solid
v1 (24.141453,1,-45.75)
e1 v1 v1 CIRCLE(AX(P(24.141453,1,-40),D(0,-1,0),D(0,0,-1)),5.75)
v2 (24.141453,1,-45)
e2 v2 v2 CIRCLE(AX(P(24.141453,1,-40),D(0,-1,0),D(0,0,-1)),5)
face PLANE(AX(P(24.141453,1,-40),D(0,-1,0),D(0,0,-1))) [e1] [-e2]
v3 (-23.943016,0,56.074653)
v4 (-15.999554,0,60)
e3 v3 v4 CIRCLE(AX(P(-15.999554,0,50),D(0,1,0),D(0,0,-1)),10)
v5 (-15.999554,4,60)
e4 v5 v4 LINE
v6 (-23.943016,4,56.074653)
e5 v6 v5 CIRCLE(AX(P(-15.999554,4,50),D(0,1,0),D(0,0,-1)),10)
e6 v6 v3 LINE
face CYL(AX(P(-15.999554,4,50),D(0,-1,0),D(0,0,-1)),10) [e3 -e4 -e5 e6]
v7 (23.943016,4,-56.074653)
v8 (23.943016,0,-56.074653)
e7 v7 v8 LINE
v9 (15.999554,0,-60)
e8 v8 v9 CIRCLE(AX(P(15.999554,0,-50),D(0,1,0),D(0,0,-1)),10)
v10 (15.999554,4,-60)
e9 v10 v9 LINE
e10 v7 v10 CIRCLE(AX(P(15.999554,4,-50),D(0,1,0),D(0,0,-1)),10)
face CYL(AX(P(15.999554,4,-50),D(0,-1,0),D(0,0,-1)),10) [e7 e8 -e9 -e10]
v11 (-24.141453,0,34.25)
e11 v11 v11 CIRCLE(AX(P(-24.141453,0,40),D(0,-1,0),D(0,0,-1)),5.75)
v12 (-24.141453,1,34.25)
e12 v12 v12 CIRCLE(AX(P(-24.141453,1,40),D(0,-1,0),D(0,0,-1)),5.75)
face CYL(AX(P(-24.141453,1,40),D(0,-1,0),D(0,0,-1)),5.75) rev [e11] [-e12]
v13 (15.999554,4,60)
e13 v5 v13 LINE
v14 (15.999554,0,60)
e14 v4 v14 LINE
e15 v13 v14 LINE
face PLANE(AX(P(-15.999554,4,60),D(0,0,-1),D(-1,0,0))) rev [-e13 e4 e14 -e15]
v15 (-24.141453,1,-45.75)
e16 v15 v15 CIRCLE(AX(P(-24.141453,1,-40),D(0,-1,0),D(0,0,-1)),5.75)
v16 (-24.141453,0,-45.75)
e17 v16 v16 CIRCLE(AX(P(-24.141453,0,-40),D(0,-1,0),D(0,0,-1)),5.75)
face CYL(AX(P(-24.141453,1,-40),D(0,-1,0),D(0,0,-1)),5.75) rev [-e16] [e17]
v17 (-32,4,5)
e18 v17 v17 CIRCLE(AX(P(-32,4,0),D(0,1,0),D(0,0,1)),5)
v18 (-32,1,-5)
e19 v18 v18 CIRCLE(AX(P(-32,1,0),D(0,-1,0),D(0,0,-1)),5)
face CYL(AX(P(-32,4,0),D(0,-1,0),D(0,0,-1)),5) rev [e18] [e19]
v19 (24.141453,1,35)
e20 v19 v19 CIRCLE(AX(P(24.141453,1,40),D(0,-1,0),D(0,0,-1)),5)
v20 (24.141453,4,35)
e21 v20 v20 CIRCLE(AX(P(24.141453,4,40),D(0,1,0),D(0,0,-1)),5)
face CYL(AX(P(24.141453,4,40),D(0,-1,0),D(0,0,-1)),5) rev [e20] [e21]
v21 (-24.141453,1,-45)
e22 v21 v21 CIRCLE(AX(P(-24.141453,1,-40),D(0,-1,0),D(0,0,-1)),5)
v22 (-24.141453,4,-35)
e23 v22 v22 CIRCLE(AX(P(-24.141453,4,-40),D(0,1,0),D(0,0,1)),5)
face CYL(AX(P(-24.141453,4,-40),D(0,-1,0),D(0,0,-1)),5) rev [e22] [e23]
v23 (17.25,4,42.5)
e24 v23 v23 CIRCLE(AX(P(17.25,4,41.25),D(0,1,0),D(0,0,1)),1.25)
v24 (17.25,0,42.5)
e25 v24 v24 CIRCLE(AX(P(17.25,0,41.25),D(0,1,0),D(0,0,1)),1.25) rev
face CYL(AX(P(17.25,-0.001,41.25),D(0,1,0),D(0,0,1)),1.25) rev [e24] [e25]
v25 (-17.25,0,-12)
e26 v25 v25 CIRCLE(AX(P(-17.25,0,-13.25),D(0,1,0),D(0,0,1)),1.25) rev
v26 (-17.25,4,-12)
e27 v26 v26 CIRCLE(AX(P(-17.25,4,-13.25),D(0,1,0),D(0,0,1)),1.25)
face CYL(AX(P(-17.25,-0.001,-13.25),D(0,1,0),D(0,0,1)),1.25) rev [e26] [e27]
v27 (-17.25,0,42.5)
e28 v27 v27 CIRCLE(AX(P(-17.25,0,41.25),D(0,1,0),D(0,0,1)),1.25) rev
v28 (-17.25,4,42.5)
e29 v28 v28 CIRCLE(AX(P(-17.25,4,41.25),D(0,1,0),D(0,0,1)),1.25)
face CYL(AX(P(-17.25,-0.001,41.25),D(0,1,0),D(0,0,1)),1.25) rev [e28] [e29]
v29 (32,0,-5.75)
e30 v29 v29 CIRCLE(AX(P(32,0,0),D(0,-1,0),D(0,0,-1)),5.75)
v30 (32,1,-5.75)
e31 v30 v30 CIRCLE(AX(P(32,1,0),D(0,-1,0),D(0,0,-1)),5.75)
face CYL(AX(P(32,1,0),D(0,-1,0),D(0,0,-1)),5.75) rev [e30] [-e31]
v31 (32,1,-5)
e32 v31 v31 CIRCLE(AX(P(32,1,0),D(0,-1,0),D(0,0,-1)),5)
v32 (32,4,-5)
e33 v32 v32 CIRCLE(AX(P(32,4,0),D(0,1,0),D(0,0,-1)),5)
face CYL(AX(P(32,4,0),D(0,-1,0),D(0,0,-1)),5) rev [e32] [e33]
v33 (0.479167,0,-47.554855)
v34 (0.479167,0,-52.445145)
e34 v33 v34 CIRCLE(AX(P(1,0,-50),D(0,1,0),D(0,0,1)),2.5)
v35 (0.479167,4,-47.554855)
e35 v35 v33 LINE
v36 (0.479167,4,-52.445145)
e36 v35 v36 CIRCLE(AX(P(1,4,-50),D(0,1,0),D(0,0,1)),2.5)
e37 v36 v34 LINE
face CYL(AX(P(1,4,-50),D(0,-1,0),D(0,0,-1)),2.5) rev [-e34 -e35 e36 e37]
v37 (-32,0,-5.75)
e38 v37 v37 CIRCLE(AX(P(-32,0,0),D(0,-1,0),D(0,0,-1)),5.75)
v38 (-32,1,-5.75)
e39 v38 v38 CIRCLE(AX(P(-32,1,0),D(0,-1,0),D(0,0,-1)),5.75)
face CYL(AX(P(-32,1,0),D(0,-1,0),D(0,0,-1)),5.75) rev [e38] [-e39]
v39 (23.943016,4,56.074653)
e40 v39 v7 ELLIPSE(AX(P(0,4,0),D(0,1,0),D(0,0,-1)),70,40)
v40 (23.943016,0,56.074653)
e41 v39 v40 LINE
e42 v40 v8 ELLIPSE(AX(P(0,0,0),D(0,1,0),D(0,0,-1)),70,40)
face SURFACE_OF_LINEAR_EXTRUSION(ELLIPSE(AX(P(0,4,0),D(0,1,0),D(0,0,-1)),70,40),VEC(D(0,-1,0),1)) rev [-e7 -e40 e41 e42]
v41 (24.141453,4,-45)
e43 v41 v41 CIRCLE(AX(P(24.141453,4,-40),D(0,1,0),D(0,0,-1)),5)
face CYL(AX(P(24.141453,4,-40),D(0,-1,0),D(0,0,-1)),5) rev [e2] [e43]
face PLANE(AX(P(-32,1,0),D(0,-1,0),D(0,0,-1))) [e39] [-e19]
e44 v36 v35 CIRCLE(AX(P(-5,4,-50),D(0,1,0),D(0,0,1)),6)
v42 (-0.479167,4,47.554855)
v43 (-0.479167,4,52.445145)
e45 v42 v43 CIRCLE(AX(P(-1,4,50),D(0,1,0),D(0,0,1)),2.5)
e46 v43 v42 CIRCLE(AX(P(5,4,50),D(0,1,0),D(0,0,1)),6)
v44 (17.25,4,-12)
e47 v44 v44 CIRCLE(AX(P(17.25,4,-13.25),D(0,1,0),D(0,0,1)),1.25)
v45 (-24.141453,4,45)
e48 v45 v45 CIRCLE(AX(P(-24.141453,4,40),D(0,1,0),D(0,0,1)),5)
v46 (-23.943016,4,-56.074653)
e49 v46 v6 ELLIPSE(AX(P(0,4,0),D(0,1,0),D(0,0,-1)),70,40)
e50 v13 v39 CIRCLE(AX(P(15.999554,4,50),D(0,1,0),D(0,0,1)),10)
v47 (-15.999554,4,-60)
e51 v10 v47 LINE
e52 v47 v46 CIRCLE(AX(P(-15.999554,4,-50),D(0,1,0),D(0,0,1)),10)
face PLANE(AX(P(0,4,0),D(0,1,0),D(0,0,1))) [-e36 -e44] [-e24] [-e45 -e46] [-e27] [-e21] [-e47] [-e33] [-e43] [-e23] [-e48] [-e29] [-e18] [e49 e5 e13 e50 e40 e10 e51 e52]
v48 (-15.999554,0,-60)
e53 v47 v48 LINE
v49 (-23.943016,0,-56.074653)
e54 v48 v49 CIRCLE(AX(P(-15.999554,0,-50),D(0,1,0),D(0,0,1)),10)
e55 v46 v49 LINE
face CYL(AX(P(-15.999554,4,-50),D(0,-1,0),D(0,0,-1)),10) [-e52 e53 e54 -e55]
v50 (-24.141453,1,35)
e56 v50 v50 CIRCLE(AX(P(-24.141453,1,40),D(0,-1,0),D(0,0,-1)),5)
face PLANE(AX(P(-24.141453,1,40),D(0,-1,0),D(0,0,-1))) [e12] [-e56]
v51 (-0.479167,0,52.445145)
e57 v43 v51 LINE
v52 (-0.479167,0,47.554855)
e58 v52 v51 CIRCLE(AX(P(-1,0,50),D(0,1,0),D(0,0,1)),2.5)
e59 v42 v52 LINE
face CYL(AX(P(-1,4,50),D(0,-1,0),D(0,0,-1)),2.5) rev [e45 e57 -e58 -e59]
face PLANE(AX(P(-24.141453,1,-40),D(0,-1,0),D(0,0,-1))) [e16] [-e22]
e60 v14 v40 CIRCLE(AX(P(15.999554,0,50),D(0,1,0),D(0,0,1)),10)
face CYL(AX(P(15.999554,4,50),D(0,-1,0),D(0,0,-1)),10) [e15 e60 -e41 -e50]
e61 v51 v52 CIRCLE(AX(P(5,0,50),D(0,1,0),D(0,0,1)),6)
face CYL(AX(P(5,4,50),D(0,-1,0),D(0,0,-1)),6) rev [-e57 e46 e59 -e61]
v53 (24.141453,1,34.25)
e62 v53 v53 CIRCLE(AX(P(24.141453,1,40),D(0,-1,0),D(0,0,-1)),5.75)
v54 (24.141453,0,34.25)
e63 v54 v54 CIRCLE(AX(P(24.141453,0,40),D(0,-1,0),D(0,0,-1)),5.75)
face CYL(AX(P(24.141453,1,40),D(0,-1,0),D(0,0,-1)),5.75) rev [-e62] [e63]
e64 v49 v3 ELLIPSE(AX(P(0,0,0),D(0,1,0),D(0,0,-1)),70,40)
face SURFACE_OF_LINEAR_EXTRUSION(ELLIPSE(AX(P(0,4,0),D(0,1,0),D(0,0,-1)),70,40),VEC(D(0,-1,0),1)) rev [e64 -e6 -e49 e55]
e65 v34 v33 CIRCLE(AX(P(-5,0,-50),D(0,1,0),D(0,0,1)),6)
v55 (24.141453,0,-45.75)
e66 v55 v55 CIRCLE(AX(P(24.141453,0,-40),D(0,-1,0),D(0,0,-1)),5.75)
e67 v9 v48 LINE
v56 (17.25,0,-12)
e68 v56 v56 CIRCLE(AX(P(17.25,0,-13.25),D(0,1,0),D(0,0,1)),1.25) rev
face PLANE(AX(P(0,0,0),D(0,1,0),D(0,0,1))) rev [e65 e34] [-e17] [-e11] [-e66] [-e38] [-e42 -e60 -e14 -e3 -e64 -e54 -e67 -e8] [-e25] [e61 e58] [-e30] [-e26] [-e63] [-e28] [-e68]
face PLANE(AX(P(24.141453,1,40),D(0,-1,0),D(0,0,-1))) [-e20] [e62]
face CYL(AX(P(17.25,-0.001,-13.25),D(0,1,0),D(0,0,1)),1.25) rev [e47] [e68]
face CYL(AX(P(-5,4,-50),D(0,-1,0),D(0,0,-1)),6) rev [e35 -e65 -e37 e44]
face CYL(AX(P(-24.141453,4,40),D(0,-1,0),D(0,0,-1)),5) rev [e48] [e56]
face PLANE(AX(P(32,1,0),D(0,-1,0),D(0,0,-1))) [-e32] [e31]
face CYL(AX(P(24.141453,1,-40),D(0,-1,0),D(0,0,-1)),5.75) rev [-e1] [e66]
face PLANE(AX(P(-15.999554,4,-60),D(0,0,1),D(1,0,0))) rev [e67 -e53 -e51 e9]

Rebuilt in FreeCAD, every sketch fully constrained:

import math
import FreeCAD as App
import Part
import Sketcher

doc = App.newDocument("Part")
body = doc.addObject("PartDesign::Body", "Body")

sketch1 = doc.addObject("Sketcher::SketchObject", "Sketch")
body.addObject(sketch1)
sketch1.AttachmentSupport = (doc.XZ_Plane, [""])
sketch1.MapMode = "FlatFace"
sketch1.addGeometry([
    Part.LineSegment(App.Vector(15.999554, -60, 0), App.Vector(-15.999554, -60, 0)),
    Part.ArcOfCircle(Part.Circle(App.Vector(-15.999554, -50, 0), App.Vector(0, 0, 1), 10), math.radians(-142.593548), math.radians(-90)),
    Part.BSplineCurve([App.Vector(-23.943016, -56.074653, 0), App.Vector(-66.825332, 0, 0), App.Vector(-23.943016, 56.074653, 0)], [3, 3], [0.641721545, 2.499871109], False, 2, [1, 0.598575399, 1], False),
    Part.ArcOfCircle(Part.Circle(App.Vector(-15.999554, 50, 0), App.Vector(0, 0, 1), 10), math.radians(90), math.radians(142.593548)),
    Part.LineSegment(App.Vector(-15.999554, 60, 0), App.Vector(15.999554, 60, 0)),
    Part.ArcOfCircle(Part.Circle(App.Vector(15.999554, 50, 0), App.Vector(0, 0, 1), 10), math.radians(37.406452), math.radians(90)),
    Part.BSplineCurve([App.Vector(23.943016, 56.074653, 0), App.Vector(66.825332, 0, 0), App.Vector(23.943016, -56.074653, 0)], [3, 3], [3.783314198, 5.641463762], False, 2, [1, 0.598575399, 1], False),
    Part.ArcOfCircle(Part.Circle(App.Vector(15.999554, -50, 0), App.Vector(0, 0, 1), 10), math.radians(-90), math.radians(-37.406452)),
    Part.Circle(App.Vector(24.141453, 40, 0), App.Vector(0, 0, 1), 5),
    Part.ArcOfCircle(Part.Circle(App.Vector(-1, 50, 0), App.Vector(0, 0, 1), 2.5), math.radians(77.975301), math.radians(282.024699)),
    Part.ArcOfCircle(Part.Circle(App.Vector(5, 50, 0), App.Vector(0, 0, 1), 6), math.radians(-155.950602), math.radians(155.950602)),
    Part.Circle(App.Vector(32, 0, 0), App.Vector(0, 0, 1), 5),
    Part.Circle(App.Vector(-24.141453, 40, 0), App.Vector(0, 0, 1), 5),
    Part.Circle(App.Vector(-32, 0, 0), App.Vector(0, 0, 1), 5),
    Part.Circle(App.Vector(24.141453, -40, 0), App.Vector(0, 0, 1), 5),
    Part.ArcOfCircle(Part.Circle(App.Vector(1, -50, 0), App.Vector(0, 0, 1), 2.5), math.radians(-102.024699), math.radians(102.024699)),
    Part.ArcOfCircle(Part.Circle(App.Vector(-5, -50, 0), App.Vector(0, 0, 1), 6), math.radians(24.049398), math.radians(335.950602)),
    Part.Circle(App.Vector(-24.141453, -40, 0), App.Vector(0, 0, 1), 5),
], False)
sketch1.addConstraint([
    Sketcher.Constraint("Block", 2),
    Sketcher.Constraint("Block", 6),
    Sketcher.Constraint("Tangent", 0, 2, 1, 2),
    Sketcher.Constraint("Coincident", 1, 1, 2, 1),
    Sketcher.Constraint("Coincident", 2, 2, 3, 2),
    Sketcher.Constraint("Tangent", 3, 1, 4, 1),
    Sketcher.Constraint("Tangent", 4, 2, 5, 2),
    Sketcher.Constraint("Coincident", 5, 1, 6, 1),
    Sketcher.Constraint("Coincident", 6, 2, 7, 2),
    Sketcher.Constraint("Tangent", 7, 1, 0, 1),
    Sketcher.Constraint("Coincident", 9, 1, 10, 2),
    Sketcher.Constraint("Coincident", 10, 1, 9, 2),
    Sketcher.Constraint("Coincident", 15, 1, 16, 2),
    Sketcher.Constraint("Coincident", 16, 1, 15, 2),
    Sketcher.Constraint("Horizontal", 0),
    Sketcher.Constraint("Horizontal", 4),
    Sketcher.Constraint("Equal", 1, 3),
    Sketcher.Constraint("Equal", 3, 5),
    Sketcher.Constraint("Equal", 5, 7),
    Sketcher.Constraint("Equal", 8, 11),
    Sketcher.Constraint("Equal", 11, 12),
    Sketcher.Constraint("Equal", 12, 13),
    Sketcher.Constraint("Equal", 13, 14),
    Sketcher.Constraint("Equal", 9, 15),
    Sketcher.Constraint("Equal", 10, 16),
    Sketcher.Constraint("Equal", 14, 17),
    Sketcher.Constraint("Symmetric", 11, 3, 13, 3, -1, 1),
    Sketcher.Constraint("Symmetric", 12, 3, 14, 3, -1, 1),
    Sketcher.Constraint("Symmetric", 9, 3, 15, 3, -1, 1),
    Sketcher.Constraint("Symmetric", 10, 3, 16, 3, -1, 1),
    Sketcher.Constraint("Symmetric", 8, 3, 17, 3, -1, 1),
    Sketcher.Constraint("Symmetric", 8, 3, 12, 3, -2),
    Sketcher.Constraint("PointOnObject", 11, 3, -1),
    Sketcher.Constraint("Horizontal", 5, 3, 9, 3),
    Sketcher.Constraint("Horizontal", 9, 3, 10, 3),
    Sketcher.Constraint("Horizontal", 7, 3, 15, 3),
    Sketcher.Constraint("Diameter", 8, 10.0),
    Sketcher.Constraint("Radius", 1, 10.0),
    Sketcher.Constraint("Radius", 10, 6.0),
    Sketcher.Constraint("Radius", 9, 2.5),
    Sketcher.Constraint("DistanceY", 1, 3, -1, 1, 50.0),
    Sketcher.Constraint("DistanceY", -1, 1, 8, 3, 40.0),
    Sketcher.Constraint("DistanceX", 9, 3, -1, 1, 1.0),
    Sketcher.Constraint("DistanceX", -1, 1, 10, 3, 5.0),
    Sketcher.Constraint("DistanceX", -1, 1, 11, 3, 32.0),
    Sketcher.Constraint("DistanceX", 5, 3, 8, 3, 8.141899),
])
pad1 = doc.addObject("PartDesign::Pad", "Pad")
body.addObject(pad1)
pad1.Profile = sketch1
pad1.Length = 4
pad1.Reversed = True

sketch2 = doc.addObject("Sketcher::SketchObject", "Sketch001")
body.addObject(sketch2)
sketch2.AttachmentSupport = (doc.XZ_Plane, [""])
sketch2.MapMode = "FlatFace"
sketch2.addGeometry([
    Part.Circle(App.Vector(-24.141453, -40, 0), App.Vector(0, 0, 1), 5.75),
    Part.Circle(App.Vector(24.141453, -40, 0), App.Vector(0, 0, 1), 5.75),
    Part.Circle(App.Vector(32, 0, 0), App.Vector(0, 0, 1), 5.75),
    Part.Circle(App.Vector(24.141453, 40, 0), App.Vector(0, 0, 1), 5.75),
    Part.Circle(App.Vector(-24.141453, 40, 0), App.Vector(0, 0, 1), 5.75),
    Part.Circle(App.Vector(-32, 0, 0), App.Vector(0, 0, 1), 5.75),
], False)
sketch2.addConstraint([
    Sketcher.Constraint("Equal", 0, 1),
    Sketcher.Constraint("Equal", 1, 2),
    Sketcher.Constraint("Equal", 2, 3),
    Sketcher.Constraint("Equal", 3, 4),
    Sketcher.Constraint("Equal", 4, 5),
    Sketcher.Constraint("Symmetric", 0, 3, 3, 3, -1, 1),
    Sketcher.Constraint("Symmetric", 1, 3, 4, 3, -1, 1),
    Sketcher.Constraint("Symmetric", 2, 3, 5, 3, -1, 1),
    Sketcher.Constraint("Symmetric", 0, 3, 1, 3, -2),
    Sketcher.Constraint("PointOnObject", 2, 3, -1),
    Sketcher.Constraint("Diameter", 0, 11.5),
    Sketcher.Constraint("DistanceY", 0, 3, -1, 1, 40.0),
    Sketcher.Constraint("DistanceX", -1, 1, 2, 3, 32.0),
    Sketcher.Constraint("DistanceX", 0, 3, -1, 1, 24.141453),
])
pocket1 = doc.addObject("PartDesign::Pocket", "Pocket")
body.addObject(pocket1)
pocket1.Profile = sketch2
pocket1.Length = 1

sketch3 = doc.addObject("Sketcher::SketchObject", "Sketch002")
body.addObject(sketch3)
sketch3.AttachmentSupport = (doc.XZ_Plane, [""])
sketch3.MapMode = "FlatFace"
sketch3.AttachmentOffset = App.Placement(App.Vector(0, 0, -4), App.Rotation())
sketch3.addGeometry(Part.Circle(App.Vector(17.25, 41.25, 0), App.Vector(0, 0, 1), 1.25), False)
sketch3.addConstraint([
    Sketcher.Constraint("Diameter", 0, 2.5),
    Sketcher.Constraint("DistanceX", -1, 1, 0, 3, 17.25),
    Sketcher.Constraint("DistanceY", -1, 1, 0, 3, 41.25),
])
pocket2 = doc.addObject("PartDesign::Pocket", "Pocket001")
body.addObject(pocket2)
pocket2.Profile = sketch3
pocket2.Type = "UpToFirst"
pocket2.Reversed = True

sketch4 = doc.addObject("Sketcher::SketchObject", "Sketch003")
body.addObject(sketch4)
sketch4.AttachmentSupport = (doc.XZ_Plane, [""])
sketch4.MapMode = "FlatFace"
sketch4.AttachmentOffset = App.Placement(App.Vector(0, 0, -4), App.Rotation())
sketch4.addGeometry(Part.Circle(App.Vector(17.25, -13.25, 0), App.Vector(0, 0, 1), 1.25), False)
sketch4.addConstraint([
    Sketcher.Constraint("Diameter", 0, 2.5),
    Sketcher.Constraint("DistanceX", -1, 1, 0, 3, 17.25),
    Sketcher.Constraint("DistanceY", 0, 3, -1, 1, 13.25),
])
pocket3 = doc.addObject("PartDesign::Pocket", "Pocket002")
body.addObject(pocket3)
pocket3.Profile = sketch4
pocket3.Type = "UpToFirst"
pocket3.Reversed = True

sketch5 = doc.addObject("Sketcher::SketchObject", "Sketch004")
body.addObject(sketch5)
sketch5.AttachmentSupport = (doc.XZ_Plane, [""])
sketch5.MapMode = "FlatFace"
sketch5.AttachmentOffset = App.Placement(App.Vector(0, 0, -4), App.Rotation())
sketch5.addGeometry(Part.Circle(App.Vector(-17.25, -13.25, 0), App.Vector(0, 0, 1), 1.25), False)
sketch5.addConstraint([
    Sketcher.Constraint("Diameter", 0, 2.5),
    Sketcher.Constraint("DistanceX", 0, 3, -1, 1, 17.25),
    Sketcher.Constraint("DistanceY", 0, 3, -1, 1, 13.25),
])
pocket4 = doc.addObject("PartDesign::Pocket", "Pocket003")
body.addObject(pocket4)
pocket4.Profile = sketch5
pocket4.Type = "UpToFirst"
pocket4.Reversed = True

sketch6 = doc.addObject("Sketcher::SketchObject", "Sketch005")
body.addObject(sketch6)
sketch6.AttachmentSupport = (doc.XZ_Plane, [""])
sketch6.MapMode = "FlatFace"
sketch6.AttachmentOffset = App.Placement(App.Vector(0, 0, -4), App.Rotation())
sketch6.addGeometry(Part.Circle(App.Vector(-17.25, 41.25, 0), App.Vector(0, 0, 1), 1.25), False)
sketch6.addConstraint([
    Sketcher.Constraint("Diameter", 0, 2.5),
    Sketcher.Constraint("DistanceX", 0, 3, -1, 1, 17.25),
    Sketcher.Constraint("DistanceY", -1, 1, 0, 3, 41.25),
])
pocket5 = doc.addObject("PartDesign::Pocket", "Pocket004")
body.addObject(pocket5)
pocket5.Profile = sketch6
pocket5.Type = "UpToFirst"
pocket5.Reversed = True

doc.recompute()
